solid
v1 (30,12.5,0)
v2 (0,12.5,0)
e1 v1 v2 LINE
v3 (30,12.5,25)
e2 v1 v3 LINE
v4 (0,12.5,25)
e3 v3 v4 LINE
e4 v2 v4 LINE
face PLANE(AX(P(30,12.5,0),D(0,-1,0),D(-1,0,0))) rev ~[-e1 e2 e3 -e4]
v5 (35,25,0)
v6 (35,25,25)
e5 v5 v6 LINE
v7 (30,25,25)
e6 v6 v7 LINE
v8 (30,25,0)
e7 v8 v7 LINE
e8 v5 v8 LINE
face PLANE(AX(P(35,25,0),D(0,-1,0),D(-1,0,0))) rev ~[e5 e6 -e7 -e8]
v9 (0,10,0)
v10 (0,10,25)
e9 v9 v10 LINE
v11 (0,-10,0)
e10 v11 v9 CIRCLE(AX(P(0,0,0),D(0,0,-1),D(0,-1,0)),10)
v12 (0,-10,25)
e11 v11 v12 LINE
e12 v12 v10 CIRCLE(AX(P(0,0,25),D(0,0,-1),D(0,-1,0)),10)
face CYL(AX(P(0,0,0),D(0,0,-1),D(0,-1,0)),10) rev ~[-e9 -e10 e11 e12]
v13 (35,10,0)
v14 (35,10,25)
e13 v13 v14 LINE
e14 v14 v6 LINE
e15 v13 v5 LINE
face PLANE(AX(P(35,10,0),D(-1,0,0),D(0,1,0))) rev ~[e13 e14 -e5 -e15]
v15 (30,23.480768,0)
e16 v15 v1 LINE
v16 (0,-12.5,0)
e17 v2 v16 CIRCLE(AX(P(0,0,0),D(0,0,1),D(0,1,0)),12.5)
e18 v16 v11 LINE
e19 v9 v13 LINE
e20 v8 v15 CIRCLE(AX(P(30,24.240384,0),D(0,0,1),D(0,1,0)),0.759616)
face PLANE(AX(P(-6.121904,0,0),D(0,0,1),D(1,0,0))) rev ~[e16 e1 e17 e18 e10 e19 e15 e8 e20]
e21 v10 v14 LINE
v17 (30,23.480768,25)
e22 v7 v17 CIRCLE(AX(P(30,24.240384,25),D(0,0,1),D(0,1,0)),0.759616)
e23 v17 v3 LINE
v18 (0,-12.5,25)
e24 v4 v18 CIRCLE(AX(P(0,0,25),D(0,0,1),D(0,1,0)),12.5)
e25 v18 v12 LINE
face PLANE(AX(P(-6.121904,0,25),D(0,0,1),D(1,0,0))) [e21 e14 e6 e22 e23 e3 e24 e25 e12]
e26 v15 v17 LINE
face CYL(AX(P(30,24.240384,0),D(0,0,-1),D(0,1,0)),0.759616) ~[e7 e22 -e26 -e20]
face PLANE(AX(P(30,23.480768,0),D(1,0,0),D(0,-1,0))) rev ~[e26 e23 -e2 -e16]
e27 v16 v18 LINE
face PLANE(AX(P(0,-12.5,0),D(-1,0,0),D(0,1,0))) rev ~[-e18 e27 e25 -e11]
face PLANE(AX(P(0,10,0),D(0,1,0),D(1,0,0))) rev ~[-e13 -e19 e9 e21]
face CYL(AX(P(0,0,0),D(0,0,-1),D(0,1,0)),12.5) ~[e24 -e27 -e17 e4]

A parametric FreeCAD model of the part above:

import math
import FreeCAD as App
import Part
import Sketcher
Q = App.Units.Quantity

doc = App.newDocument("Part")
params = doc.addObject("Spreadsheet::Sheet", "Params")
for row, (alias, value) in enumerate([
    ("sketch1_radius", "10 mm"),
    ("sketch1_radius2", "12.5 mm"),
    ("sketch1_width", "35 mm"),
    ("sketch1_width2", "5 mm"),
    ("sketch1_height", "15 mm"),
    ("pad1_length", "25 mm"),
], start=1):
    params.set(f"A{row}", alias)
    params.set(f"B{row}", "=" + value)
    params.setAlias(f"B{row}", alias)

body = doc.addObject("PartDesign::Body", "Body")

# Sketch on XY plane
sketch1 = doc.addObject("Sketcher::SketchObject", "Sketch")
body.addObject(sketch1)
sketch1.AttachmentSupport = (doc.XY_Plane, [""])
sketch1.MapMode = "FlatFace"
sketch1.addGeometry([
    Part.ArcOfCircle(Part.Circle(App.Vector(0, 0, 0), App.Vector(0, 0, 1), 10), math.radians(90), math.radians(270)),  # 0
    Part.LineSegment(App.Vector(0, 10, 0), App.Vector(35, 10, 0)),  # 1
    Part.LineSegment(App.Vector(35, 10, 0), App.Vector(35, 25, 0)),  # 2
    Part.LineSegment(App.Vector(35, 25, 0), App.Vector(30, 25, 0)),  # 3
    Part.ArcOfCircle(Part.Circle(App.Vector(30, 24.2, 0), App.Vector(0, 0, 1), 0.8), math.radians(90), math.radians(270)),  # 4
    Part.LineSegment(App.Vector(30, 23.5, 0), App.Vector(30, 12.5, 0)),  # 5
    Part.LineSegment(App.Vector(30, 12.5, 0), App.Vector(0, 12.5, 0)),  # 6
    Part.ArcOfCircle(Part.Circle(App.Vector(0, 0, 0), App.Vector(0, 0, 1), 12.5), math.radians(90), math.radians(270)),  # 7
    Part.LineSegment(App.Vector(0, -12.5, 0), App.Vector(0, -10, 0)),  # 8
], False)
sketch1.addConstraint([
    Sketcher.Constraint("Tangent", 0, 1, 1, 1),
    Sketcher.Constraint("Coincident", 1, 2, 2, 1),
    Sketcher.Constraint("Coincident", 2, 2, 3, 1),
    Sketcher.Constraint("Tangent", 3, 2, 4, 1),
    Sketcher.Constraint("Coincident", 4, 2, 5, 1),
    Sketcher.Constraint("Coincident", 5, 2, 6, 1),
    Sketcher.Constraint("Tangent", 6, 2, 7, 1),
    Sketcher.Constraint("Coincident", 7, 2, 8, 1),
    Sketcher.Constraint("Coincident", 8, 2, 0, 2),
    Sketcher.Constraint("Horizontal", 1),
    Sketcher.Constraint("Vertical", 2),
    Sketcher.Constraint("Horizontal", 3),
    Sketcher.Constraint("Vertical", 5),
    Sketcher.Constraint("Horizontal", 6),
    Sketcher.Constraint("Vertical", 8),
    Sketcher.Constraint("Coincident", 0, 3, -1, 1),
    Sketcher.Constraint("Coincident", 7, 3, -1, 1),
    Sketcher.Constraint("PointOnObject", 7, 2, -2),
    Sketcher.Constraint("Vertical", 3, 2, 4, 2),
    Sketcher.Constraint("Radius", 0, Q("10 mm")),
    Sketcher.Constraint("Radius", 7, Q("12.5 mm")),
    Sketcher.Constraint("DistanceX", 1, 1, 1, 2, Q("35 mm")),
    Sketcher.Constraint("DistanceX", 3, 2, 3, 1, Q("5 mm")),
    Sketcher.Constraint("DistanceY", 2, 1, 2, 2, Q("15 mm")),
    Sketcher.Constraint("Radius", 4, Q("0.759616 mm")),
])
sketch1.setExpression("Constraints[19]", "Params.sketch1_radius")
sketch1.setExpression("Constraints[20]", "Params.sketch1_radius2")
sketch1.setExpression("Constraints[21]", "Params.sketch1_width")
sketch1.setExpression("Constraints[22]", "Params.sketch1_width2")
sketch1.setExpression("Constraints[23]", "Params.sketch1_height")
pad1 = doc.addObject("PartDesign::Pad", "Pad")
body.addObject(pad1)
pad1.Profile = sketch1
pad1.setExpression("Length", "Params.pad1_length")

doc.recompute()
